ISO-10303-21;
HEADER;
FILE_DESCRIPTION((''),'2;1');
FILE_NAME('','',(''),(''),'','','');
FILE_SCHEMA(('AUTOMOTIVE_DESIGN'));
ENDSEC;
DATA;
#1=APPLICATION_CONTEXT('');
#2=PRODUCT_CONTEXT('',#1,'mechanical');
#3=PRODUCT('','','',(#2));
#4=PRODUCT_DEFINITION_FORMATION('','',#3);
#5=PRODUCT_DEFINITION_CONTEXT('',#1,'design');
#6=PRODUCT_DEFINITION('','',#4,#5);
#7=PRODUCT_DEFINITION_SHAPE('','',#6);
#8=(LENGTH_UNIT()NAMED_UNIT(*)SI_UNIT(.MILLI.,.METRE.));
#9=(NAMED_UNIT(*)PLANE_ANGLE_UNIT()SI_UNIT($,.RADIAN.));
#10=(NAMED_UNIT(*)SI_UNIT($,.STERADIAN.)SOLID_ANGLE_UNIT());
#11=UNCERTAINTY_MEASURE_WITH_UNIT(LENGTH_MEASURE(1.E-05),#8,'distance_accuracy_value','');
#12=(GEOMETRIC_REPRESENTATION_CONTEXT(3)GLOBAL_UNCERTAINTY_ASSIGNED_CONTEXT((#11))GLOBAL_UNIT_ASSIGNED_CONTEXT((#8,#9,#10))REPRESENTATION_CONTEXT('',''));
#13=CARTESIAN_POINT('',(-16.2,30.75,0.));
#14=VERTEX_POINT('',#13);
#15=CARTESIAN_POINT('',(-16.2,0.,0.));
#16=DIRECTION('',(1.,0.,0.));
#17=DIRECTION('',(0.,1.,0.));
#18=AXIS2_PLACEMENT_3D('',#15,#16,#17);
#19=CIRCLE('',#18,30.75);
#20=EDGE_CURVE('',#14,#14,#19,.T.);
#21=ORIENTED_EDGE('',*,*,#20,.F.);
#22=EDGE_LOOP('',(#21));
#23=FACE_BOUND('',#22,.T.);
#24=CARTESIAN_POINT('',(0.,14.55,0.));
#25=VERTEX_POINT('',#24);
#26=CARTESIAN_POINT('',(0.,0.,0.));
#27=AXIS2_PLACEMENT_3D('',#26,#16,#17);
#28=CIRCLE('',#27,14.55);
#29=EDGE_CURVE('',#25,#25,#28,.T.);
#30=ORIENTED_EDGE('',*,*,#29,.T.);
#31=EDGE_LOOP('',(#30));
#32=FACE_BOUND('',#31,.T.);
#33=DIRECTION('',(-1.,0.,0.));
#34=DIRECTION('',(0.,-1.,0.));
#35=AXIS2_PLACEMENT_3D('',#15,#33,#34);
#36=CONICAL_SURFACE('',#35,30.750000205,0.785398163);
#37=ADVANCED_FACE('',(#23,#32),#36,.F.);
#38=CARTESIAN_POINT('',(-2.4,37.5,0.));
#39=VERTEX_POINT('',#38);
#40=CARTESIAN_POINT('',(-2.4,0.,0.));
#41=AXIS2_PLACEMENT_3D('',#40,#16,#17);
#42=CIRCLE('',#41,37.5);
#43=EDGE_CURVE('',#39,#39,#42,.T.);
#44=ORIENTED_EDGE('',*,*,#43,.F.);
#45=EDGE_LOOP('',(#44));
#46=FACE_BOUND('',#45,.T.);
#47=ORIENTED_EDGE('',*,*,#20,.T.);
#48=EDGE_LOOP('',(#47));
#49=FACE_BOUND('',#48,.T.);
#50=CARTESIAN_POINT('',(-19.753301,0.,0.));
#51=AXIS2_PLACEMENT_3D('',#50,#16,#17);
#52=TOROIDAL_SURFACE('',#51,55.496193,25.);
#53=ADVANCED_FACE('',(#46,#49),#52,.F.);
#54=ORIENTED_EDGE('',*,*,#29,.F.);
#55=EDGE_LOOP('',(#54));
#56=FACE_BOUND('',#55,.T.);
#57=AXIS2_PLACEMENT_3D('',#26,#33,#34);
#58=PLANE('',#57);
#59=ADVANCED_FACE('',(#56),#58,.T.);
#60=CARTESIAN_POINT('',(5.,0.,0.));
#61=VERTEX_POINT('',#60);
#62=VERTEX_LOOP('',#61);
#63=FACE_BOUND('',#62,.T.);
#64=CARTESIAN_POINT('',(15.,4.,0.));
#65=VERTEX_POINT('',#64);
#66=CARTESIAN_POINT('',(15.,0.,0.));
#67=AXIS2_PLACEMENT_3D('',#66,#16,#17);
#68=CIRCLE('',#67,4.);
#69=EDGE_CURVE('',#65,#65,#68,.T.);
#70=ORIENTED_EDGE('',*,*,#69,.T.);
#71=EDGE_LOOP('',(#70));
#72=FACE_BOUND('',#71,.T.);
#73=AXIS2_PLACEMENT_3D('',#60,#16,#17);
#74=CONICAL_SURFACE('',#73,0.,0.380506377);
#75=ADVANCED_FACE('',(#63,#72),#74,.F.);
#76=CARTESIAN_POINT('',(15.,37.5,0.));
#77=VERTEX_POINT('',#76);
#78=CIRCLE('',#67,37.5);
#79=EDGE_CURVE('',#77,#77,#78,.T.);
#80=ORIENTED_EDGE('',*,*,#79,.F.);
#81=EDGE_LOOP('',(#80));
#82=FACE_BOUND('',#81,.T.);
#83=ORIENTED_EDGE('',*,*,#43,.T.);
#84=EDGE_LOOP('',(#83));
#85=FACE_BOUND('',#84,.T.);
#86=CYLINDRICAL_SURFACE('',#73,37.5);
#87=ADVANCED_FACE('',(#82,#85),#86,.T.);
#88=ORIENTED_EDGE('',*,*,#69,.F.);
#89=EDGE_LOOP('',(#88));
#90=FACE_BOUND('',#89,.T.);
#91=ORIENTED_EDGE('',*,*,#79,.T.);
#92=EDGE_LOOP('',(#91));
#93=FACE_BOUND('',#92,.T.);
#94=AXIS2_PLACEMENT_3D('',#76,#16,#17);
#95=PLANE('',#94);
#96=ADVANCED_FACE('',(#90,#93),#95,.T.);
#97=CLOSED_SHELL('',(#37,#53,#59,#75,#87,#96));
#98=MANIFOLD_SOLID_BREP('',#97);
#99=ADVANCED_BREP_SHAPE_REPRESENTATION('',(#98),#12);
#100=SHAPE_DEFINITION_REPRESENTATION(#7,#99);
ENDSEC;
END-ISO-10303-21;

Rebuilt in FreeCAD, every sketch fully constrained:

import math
import FreeCAD as App
import Part
import Sketcher
from FreeCAD import Vector
Q = App.Units.Quantity

doc = App.newDocument("Part")
body = doc.addObject("PartDesign::Body", "Body")

sketch1 = body.newObject("Sketcher::SketchObject", "Sketch")
sketch1.AttachmentSupport = (doc.getObject("XY_Plane"), [""])
sketch1.MapMode = "FlatFace"
sketch1.addGeometry(Part.LineSegment(Vector(0, 14.55, 0), Vector(0, 0, 0)), False)
sketch1.addGeometry(Part.LineSegment(Vector(0, 0, 0), Vector(5, 0, 0)), False)
sketch1.addGeometry(Part.LineSegment(Vector(5, 0, 0), Vector(15, 4, 0)), False)
sketch1.addGeometry(Part.LineSegment(Vector(15, 4, 0), Vector(15, 37.5, 0)), False)
sketch1.addGeometry(Part.LineSegment(Vector(15, 37.5, 0), Vector(-2.4, 37.5, 0)), False)
sketch1.addGeometry(Part.ArcOfCircle(Part.Circle(Vector(-19.753301, 55.496193, 0), Vector(0, 0, 1), 25), math.radians(-81.828764), math.radians(-46.041909)), False)
sketch1.addGeometry(Part.LineSegment(Vector(-16.2, 30.75, 0), Vector(0, 14.55, 0)), False)
sketch1.addConstraint(Sketcher.Constraint("Coincident", 0, 2, 1, 1))
sketch1.addConstraint(Sketcher.Constraint("Coincident", 1, 2, 2, 1))
sketch1.addConstraint(Sketcher.Constraint("Coincident", 2, 2, 3, 1))
sketch1.addConstraint(Sketcher.Constraint("Coincident", 3, 2, 4, 1))
sketch1.addConstraint(Sketcher.Constraint("Coincident", 4, 2, 5, 2))
sketch1.addConstraint(Sketcher.Constraint("Coincident", 5, 1, 6, 1))
sketch1.addConstraint(Sketcher.Constraint("Coincident", 6, 2, 0, 1))
sketch1.addConstraint(Sketcher.Constraint("Vertical", 0))
sketch1.addConstraint(Sketcher.Constraint("Horizontal", 1))
sketch1.addConstraint(Sketcher.Constraint("Vertical", 3))
sketch1.addConstraint(Sketcher.Constraint("Horizontal", 4))
sketch1.addConstraint(Sketcher.Constraint("Coincident", 0, 2, -1, 1))
sketch1.addConstraint(Sketcher.Constraint("Radius", 5, 25.0))
sketch1.addConstraint(Sketcher.Constraint("DistanceX", 1, 1, 1, 2, 5.0))
sketch1.addConstraint(Sketcher.Constraint("Angle", 6, Q("-45 deg")))
sketch1.addConstraint(Sketcher.Constraint("DistanceX", 4, 2, 4, 1, 17.4))
sketch1.addConstraint(Sketcher.Constraint("DistanceY", 3, 1, 3, 2, 33.5))
sketch1.addConstraint(Sketcher.Constraint("DistanceX", -1, 1, 2, 2, 15.0))
sketch1.addConstraint(Sketcher.Constraint("DistanceY", -1, 1, 2, 2, 4.0))
sketch1.addConstraint(Sketcher.Constraint("DistanceY", 0, 2, 0, 1, 14.55))
sketch1.addConstraint(Sketcher.Constraint("DistanceX", 5, 1, -1, 1, 16.2))
revolution = body.newObject("PartDesign::Revolution", "Revolution")
revolution.Profile = sketch1
revolution.ReferenceAxis = (sketch1, ["H_Axis"])
revolution.Angle = 360

doc.recompute()
